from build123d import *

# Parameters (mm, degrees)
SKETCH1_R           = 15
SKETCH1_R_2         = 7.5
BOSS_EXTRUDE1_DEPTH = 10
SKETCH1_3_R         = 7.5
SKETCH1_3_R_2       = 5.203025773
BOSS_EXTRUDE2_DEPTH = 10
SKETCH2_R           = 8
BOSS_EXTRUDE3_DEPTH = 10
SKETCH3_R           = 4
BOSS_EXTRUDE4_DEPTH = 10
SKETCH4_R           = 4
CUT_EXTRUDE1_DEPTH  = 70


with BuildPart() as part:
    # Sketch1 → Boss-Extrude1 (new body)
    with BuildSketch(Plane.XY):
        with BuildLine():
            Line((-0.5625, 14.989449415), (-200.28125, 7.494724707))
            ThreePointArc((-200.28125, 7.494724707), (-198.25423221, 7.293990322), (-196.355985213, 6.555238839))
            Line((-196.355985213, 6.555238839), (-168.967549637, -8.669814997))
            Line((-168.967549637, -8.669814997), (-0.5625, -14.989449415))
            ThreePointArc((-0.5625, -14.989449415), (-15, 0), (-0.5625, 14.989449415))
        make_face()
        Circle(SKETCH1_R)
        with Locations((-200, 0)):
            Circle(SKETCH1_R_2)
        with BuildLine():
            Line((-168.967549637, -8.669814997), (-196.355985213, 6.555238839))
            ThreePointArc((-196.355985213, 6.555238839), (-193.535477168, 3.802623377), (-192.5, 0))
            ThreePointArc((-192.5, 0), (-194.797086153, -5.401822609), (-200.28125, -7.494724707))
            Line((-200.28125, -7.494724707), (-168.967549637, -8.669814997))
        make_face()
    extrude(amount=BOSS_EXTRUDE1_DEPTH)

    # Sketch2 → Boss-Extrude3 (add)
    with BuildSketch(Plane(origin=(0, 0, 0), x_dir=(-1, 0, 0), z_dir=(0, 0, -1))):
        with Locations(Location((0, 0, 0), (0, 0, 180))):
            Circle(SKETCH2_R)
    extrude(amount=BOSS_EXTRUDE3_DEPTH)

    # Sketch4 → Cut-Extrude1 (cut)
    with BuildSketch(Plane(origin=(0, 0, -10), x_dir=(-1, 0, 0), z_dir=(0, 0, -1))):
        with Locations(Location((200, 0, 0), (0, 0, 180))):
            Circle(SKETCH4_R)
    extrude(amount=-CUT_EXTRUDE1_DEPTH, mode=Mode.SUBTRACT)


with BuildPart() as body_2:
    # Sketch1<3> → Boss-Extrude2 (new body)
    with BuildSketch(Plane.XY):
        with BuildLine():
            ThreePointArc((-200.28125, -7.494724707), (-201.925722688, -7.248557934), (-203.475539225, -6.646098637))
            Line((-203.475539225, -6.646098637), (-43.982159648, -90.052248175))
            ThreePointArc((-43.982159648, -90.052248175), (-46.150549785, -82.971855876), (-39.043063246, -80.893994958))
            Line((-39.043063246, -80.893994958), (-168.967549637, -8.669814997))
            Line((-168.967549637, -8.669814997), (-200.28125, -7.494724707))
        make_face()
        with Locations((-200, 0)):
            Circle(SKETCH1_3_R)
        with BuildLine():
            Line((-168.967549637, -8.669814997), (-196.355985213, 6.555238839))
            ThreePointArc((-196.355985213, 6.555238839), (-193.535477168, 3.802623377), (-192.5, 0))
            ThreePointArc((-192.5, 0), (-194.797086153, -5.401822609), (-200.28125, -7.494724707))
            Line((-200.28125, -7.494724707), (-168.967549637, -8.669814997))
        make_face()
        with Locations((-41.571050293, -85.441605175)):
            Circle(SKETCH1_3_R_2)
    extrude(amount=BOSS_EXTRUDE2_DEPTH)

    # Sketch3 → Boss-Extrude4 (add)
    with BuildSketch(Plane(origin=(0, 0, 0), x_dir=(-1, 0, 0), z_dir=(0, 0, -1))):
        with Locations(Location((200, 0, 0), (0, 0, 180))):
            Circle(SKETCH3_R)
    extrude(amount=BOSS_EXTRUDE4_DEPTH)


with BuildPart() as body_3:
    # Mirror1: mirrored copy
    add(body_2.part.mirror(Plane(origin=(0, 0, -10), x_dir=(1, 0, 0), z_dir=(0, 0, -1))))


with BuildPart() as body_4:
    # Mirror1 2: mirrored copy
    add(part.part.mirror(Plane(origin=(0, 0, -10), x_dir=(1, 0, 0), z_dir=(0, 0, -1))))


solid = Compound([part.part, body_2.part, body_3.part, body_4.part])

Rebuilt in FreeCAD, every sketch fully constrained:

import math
import FreeCAD as App
import Part
import Sketcher

V = App.Vector

doc = App.newDocument("Part")
body = doc.addObject("PartDesign::Body", "Body")

# Sketch on XY plane
sketch1 = doc.addObject("Sketcher::SketchObject", "Sketch")
body.addObject(sketch1)
sketch1.AttachmentSupport = (doc.XY_Plane, [""])
sketch1.MapMode = "FlatFace"
sketch1.addGeometry(Part.LineSegment(V(-1, 15, 0), V(-200, 7, 0)), False)
sketch1.addGeometry(Part.ArcOfCircle(Part.Circle(V(-200, 0, 0), V(0, 0, 1), 8), math.radians(92), math.radians(268)), False)
sketch1.addGeometry(Part.LineSegment(V(-200, -7, 0), V(-169, -9, 0)), False)
sketch1.addGeometry(Part.LineSegment(V(-169, -9, 0), V(-1, -15, 0)), False)
sketch1.addGeometry(Part.ArcOfCircle(Part.Circle(V(0, 0, 0), V(0, 0, 1), 15), math.radians(-92), math.radians(92)), False)
sketch1.addConstraint(Sketcher.Constraint("Tangent", 0, 2, 1, 1))
sketch1.addConstraint(Sketcher.Constraint("Tangent", 1, 2, 2, 1))
sketch1.addConstraint(Sketcher.Constraint("Coincident", 2, 2, 3, 1))
sketch1.addConstraint(Sketcher.Constraint("Tangent", 3, 2, 4, 1))
sketch1.addConstraint(Sketcher.Constraint("Tangent", 4, 2, 0, 1))
sketch1.addConstraint(Sketcher.Constraint("Coincident", 4, 3, -1, 1))
sketch1.addConstraint(Sketcher.Constraint("Symmetric", 0, 2, 1, 2, -1))
sketch1.addConstraint(Sketcher.Constraint("Radius", 4, 15.0))
sketch1.addConstraint(Sketcher.Constraint("Radius", 1, 7.5))
sketch1.addConstraint(Sketcher.Constraint("DistanceX", 1, 3, -1, 1, 200.0))
sketch1.addConstraint(Sketcher.Constraint("DistanceX", 1, 2, 2, 2, 31.3137))
pad1 = doc.addObject("PartDesign::Pad", "Pad")
body.addObject(pad1)
pad1.Profile = sketch1
pad1.Length = 10

# Sketch on XY plane
sketch2 = doc.addObject("Sketcher::SketchObject", "Sketch001")
body.addObject(sketch2)
sketch2.AttachmentSupport = (doc.XY_Plane, [""])
sketch2.MapMode = "FlatFace"
sketch2.addGeometry(Part.Circle(V(0, 0, 0), V(0, 0, 1), 8), False)
sketch2.addConstraint(Sketcher.Constraint("Coincident", 0, 3, -1, 1))
sketch2.addConstraint(Sketcher.Constraint("Diameter", 0, 16.0))
pad2 = doc.addObject("PartDesign::Pad", "Pad001")
body.addObject(pad2)
pad2.Profile = sketch2
pad2.Length = 10
pad2.Reversed = True

# Sketch on XY plane
sketch3 = doc.addObject("Sketcher::SketchObject", "Sketch002")
body.addObject(sketch3)
sketch3.AttachmentSupport = (doc.XY_Plane, [""])
sketch3.MapMode = "FlatFace"
sketch3.AttachmentOffset = App.Placement(V(0, 0, -10), App.Rotation())
sketch3.addGeometry(Part.Circle(V(-200, 0, 0), V(0, 0, 1), 4), False)
sketch3.addConstraint(Sketcher.Constraint("PointOnObject", 0, 3, -1))
sketch3.addConstraint(Sketcher.Constraint("Diameter", 0, 8.0))
sketch3.addConstraint(Sketcher.Constraint("DistanceX", 0, 3, -1, 1, 200.0))
pocket1 = doc.addObject("PartDesign::Pocket", "Pocket")
body.addObject(pocket1)
pocket1.Profile = sketch3
pocket1.Length = 70
pocket1.Reversed = True
body2 = doc.addObject("PartDesign::Body", "Body001")

# Sketch on XY plane
sketch4 = doc.addObject("Sketcher::SketchObject", "Sketch003")
body2.addObject(sketch4)
sketch4.AttachmentSupport = (doc.getObject("XY_Plane001"), [""])
sketch4.MapMode = "FlatFace"
sketch4.addGeometry(Part.LineSegment(V(-203.475539, -6.646099, 0), V(-43.98216, -90.052248, 0)), False)
sketch4.addGeometry(Part.ArcOfCircle(Part.Circle(V(-41.57105, -85.441605, 0), V(0, 0, 1), 5.203026), math.radians(-117.60706), math.radians(60.930601)), False)
sketch4.addGeometry(Part.LineSegment(V(-39.043063, -80.893995, 0), V(-168.96755, -8.669815, 0)), False)
sketch4.addGeometry(Part.LineSegment(V(-168.96755, -8.669815, 0), V(-196.355985, 6.555239, 0)), False)
sketch4.addGeometry(Part.ArcOfCircle(Part.Circle(V(-200, 0, 0), V(0, 0, 1), 7.5), math.radians(60.930601), math.radians(242.39294)), False)
sketch4.addConstraint(Sketcher.Constraint("Coincident", 0, 2, 1, 1))
sketch4.addConstraint(Sketcher.Constraint("Coincident", 1, 2, 2, 1))
sketch4.addConstraint(Sketcher.Constraint("Coincident", 2, 2, 3, 1))
sketch4.addConstraint(Sketcher.Constraint("Coincident", 3, 2, 4, 1))
sketch4.addConstraint(Sketcher.Constraint("Coincident", 4, 2, 0, 1))
sketch4.addConstraint(Sketcher.Constraint("PointOnObject", 4, 3, -1))
sketch4.addConstraint(Sketcher.Constraint("Radius", 4, 7.5))
sketch4.addConstraint(Sketcher.Constraint("DistanceX", 4, 3, -1, 1, 200.0))
sketch4.addConstraint(Sketcher.Constraint("Radius", 1, 5.203026))
sketch4.addConstraint(Sketcher.Constraint("DistanceY", 4, 2, -1, 1, 6.646099))
sketch4.addConstraint(Sketcher.Constraint("DistanceX", 2, 2, 1, 3, 127.396499))
sketch4.addConstraint(Sketcher.Constraint("Distance", 3, 31.335741))
sketch4.addConstraint(Sketcher.Constraint("DistanceX", 1, 3, -1, 1, 41.57105))
sketch4.addConstraint(Sketcher.Constraint("DistanceX", 0, 2, -1, 1, 43.98216))
sketch4.addConstraint(Sketcher.Constraint("DistanceY", 0, 2, -1, 1, 90.052248))
sketch4.addConstraint(Sketcher.Constraint("DistanceY", -1, 1, 3, 2, 6.555239))
sketch4.addConstraint(Sketcher.Constraint("DistanceY", 1, 3, 1, 2, 4.54761))
pad3 = doc.addObject("PartDesign::Pad", "Pad002")
body2.addObject(pad3)
pad3.Profile = sketch4
pad3.Length = 10

# Sketch on XY plane
sketch5 = doc.addObject("Sketcher::SketchObject", "Sketch004")
body2.addObject(sketch5)
sketch5.AttachmentSupport = (doc.getObject("XY_Plane001"), [""])
sketch5.MapMode = "FlatFace"
sketch5.addGeometry(Part.Circle(V(-200, 0, 0), V(0, 0, 1), 4), False)
sketch5.addConstraint(Sketcher.Constraint("PointOnObject", 0, 3, -1))
sketch5.addConstraint(Sketcher.Constraint("Diameter", 0, 8.0))
sketch5.addConstraint(Sketcher.Constraint("DistanceX", 0, 3, -1, 1, 200.0))
pad4 = doc.addObject("PartDesign::Pad", "Pad003")
body2.addObject(pad4)
pad4.Profile = sketch5
pad4.Length = 10
pad4.Reversed = True
body3 = doc.addObject("PartDesign::Body", "Body002")
doc.recompute()

mirroring = doc.addObject("Part::Mirroring", "Mirroring")
mirroring.Source = body2
mirroring.Base = V(0, 0, -10)
mirroring.Normal = V(0, 0, -1)
body3.BaseFeature = mirroring
doc.recompute()
body4 = doc.addObject("PartDesign::Body", "Body003")
doc.recompute()

mirroring2 = doc.addObject("Part::Mirroring", "Mirroring001")
mirroring2.Source = body
mirroring2.Base = V(0, 0, -10)
mirroring2.Normal = V(0, 0, -1)
body4.BaseFeature = mirroring2
doc.recompute()
mirroring.Visibility = False
mirroring2.Visibility = False

doc.recompute()
